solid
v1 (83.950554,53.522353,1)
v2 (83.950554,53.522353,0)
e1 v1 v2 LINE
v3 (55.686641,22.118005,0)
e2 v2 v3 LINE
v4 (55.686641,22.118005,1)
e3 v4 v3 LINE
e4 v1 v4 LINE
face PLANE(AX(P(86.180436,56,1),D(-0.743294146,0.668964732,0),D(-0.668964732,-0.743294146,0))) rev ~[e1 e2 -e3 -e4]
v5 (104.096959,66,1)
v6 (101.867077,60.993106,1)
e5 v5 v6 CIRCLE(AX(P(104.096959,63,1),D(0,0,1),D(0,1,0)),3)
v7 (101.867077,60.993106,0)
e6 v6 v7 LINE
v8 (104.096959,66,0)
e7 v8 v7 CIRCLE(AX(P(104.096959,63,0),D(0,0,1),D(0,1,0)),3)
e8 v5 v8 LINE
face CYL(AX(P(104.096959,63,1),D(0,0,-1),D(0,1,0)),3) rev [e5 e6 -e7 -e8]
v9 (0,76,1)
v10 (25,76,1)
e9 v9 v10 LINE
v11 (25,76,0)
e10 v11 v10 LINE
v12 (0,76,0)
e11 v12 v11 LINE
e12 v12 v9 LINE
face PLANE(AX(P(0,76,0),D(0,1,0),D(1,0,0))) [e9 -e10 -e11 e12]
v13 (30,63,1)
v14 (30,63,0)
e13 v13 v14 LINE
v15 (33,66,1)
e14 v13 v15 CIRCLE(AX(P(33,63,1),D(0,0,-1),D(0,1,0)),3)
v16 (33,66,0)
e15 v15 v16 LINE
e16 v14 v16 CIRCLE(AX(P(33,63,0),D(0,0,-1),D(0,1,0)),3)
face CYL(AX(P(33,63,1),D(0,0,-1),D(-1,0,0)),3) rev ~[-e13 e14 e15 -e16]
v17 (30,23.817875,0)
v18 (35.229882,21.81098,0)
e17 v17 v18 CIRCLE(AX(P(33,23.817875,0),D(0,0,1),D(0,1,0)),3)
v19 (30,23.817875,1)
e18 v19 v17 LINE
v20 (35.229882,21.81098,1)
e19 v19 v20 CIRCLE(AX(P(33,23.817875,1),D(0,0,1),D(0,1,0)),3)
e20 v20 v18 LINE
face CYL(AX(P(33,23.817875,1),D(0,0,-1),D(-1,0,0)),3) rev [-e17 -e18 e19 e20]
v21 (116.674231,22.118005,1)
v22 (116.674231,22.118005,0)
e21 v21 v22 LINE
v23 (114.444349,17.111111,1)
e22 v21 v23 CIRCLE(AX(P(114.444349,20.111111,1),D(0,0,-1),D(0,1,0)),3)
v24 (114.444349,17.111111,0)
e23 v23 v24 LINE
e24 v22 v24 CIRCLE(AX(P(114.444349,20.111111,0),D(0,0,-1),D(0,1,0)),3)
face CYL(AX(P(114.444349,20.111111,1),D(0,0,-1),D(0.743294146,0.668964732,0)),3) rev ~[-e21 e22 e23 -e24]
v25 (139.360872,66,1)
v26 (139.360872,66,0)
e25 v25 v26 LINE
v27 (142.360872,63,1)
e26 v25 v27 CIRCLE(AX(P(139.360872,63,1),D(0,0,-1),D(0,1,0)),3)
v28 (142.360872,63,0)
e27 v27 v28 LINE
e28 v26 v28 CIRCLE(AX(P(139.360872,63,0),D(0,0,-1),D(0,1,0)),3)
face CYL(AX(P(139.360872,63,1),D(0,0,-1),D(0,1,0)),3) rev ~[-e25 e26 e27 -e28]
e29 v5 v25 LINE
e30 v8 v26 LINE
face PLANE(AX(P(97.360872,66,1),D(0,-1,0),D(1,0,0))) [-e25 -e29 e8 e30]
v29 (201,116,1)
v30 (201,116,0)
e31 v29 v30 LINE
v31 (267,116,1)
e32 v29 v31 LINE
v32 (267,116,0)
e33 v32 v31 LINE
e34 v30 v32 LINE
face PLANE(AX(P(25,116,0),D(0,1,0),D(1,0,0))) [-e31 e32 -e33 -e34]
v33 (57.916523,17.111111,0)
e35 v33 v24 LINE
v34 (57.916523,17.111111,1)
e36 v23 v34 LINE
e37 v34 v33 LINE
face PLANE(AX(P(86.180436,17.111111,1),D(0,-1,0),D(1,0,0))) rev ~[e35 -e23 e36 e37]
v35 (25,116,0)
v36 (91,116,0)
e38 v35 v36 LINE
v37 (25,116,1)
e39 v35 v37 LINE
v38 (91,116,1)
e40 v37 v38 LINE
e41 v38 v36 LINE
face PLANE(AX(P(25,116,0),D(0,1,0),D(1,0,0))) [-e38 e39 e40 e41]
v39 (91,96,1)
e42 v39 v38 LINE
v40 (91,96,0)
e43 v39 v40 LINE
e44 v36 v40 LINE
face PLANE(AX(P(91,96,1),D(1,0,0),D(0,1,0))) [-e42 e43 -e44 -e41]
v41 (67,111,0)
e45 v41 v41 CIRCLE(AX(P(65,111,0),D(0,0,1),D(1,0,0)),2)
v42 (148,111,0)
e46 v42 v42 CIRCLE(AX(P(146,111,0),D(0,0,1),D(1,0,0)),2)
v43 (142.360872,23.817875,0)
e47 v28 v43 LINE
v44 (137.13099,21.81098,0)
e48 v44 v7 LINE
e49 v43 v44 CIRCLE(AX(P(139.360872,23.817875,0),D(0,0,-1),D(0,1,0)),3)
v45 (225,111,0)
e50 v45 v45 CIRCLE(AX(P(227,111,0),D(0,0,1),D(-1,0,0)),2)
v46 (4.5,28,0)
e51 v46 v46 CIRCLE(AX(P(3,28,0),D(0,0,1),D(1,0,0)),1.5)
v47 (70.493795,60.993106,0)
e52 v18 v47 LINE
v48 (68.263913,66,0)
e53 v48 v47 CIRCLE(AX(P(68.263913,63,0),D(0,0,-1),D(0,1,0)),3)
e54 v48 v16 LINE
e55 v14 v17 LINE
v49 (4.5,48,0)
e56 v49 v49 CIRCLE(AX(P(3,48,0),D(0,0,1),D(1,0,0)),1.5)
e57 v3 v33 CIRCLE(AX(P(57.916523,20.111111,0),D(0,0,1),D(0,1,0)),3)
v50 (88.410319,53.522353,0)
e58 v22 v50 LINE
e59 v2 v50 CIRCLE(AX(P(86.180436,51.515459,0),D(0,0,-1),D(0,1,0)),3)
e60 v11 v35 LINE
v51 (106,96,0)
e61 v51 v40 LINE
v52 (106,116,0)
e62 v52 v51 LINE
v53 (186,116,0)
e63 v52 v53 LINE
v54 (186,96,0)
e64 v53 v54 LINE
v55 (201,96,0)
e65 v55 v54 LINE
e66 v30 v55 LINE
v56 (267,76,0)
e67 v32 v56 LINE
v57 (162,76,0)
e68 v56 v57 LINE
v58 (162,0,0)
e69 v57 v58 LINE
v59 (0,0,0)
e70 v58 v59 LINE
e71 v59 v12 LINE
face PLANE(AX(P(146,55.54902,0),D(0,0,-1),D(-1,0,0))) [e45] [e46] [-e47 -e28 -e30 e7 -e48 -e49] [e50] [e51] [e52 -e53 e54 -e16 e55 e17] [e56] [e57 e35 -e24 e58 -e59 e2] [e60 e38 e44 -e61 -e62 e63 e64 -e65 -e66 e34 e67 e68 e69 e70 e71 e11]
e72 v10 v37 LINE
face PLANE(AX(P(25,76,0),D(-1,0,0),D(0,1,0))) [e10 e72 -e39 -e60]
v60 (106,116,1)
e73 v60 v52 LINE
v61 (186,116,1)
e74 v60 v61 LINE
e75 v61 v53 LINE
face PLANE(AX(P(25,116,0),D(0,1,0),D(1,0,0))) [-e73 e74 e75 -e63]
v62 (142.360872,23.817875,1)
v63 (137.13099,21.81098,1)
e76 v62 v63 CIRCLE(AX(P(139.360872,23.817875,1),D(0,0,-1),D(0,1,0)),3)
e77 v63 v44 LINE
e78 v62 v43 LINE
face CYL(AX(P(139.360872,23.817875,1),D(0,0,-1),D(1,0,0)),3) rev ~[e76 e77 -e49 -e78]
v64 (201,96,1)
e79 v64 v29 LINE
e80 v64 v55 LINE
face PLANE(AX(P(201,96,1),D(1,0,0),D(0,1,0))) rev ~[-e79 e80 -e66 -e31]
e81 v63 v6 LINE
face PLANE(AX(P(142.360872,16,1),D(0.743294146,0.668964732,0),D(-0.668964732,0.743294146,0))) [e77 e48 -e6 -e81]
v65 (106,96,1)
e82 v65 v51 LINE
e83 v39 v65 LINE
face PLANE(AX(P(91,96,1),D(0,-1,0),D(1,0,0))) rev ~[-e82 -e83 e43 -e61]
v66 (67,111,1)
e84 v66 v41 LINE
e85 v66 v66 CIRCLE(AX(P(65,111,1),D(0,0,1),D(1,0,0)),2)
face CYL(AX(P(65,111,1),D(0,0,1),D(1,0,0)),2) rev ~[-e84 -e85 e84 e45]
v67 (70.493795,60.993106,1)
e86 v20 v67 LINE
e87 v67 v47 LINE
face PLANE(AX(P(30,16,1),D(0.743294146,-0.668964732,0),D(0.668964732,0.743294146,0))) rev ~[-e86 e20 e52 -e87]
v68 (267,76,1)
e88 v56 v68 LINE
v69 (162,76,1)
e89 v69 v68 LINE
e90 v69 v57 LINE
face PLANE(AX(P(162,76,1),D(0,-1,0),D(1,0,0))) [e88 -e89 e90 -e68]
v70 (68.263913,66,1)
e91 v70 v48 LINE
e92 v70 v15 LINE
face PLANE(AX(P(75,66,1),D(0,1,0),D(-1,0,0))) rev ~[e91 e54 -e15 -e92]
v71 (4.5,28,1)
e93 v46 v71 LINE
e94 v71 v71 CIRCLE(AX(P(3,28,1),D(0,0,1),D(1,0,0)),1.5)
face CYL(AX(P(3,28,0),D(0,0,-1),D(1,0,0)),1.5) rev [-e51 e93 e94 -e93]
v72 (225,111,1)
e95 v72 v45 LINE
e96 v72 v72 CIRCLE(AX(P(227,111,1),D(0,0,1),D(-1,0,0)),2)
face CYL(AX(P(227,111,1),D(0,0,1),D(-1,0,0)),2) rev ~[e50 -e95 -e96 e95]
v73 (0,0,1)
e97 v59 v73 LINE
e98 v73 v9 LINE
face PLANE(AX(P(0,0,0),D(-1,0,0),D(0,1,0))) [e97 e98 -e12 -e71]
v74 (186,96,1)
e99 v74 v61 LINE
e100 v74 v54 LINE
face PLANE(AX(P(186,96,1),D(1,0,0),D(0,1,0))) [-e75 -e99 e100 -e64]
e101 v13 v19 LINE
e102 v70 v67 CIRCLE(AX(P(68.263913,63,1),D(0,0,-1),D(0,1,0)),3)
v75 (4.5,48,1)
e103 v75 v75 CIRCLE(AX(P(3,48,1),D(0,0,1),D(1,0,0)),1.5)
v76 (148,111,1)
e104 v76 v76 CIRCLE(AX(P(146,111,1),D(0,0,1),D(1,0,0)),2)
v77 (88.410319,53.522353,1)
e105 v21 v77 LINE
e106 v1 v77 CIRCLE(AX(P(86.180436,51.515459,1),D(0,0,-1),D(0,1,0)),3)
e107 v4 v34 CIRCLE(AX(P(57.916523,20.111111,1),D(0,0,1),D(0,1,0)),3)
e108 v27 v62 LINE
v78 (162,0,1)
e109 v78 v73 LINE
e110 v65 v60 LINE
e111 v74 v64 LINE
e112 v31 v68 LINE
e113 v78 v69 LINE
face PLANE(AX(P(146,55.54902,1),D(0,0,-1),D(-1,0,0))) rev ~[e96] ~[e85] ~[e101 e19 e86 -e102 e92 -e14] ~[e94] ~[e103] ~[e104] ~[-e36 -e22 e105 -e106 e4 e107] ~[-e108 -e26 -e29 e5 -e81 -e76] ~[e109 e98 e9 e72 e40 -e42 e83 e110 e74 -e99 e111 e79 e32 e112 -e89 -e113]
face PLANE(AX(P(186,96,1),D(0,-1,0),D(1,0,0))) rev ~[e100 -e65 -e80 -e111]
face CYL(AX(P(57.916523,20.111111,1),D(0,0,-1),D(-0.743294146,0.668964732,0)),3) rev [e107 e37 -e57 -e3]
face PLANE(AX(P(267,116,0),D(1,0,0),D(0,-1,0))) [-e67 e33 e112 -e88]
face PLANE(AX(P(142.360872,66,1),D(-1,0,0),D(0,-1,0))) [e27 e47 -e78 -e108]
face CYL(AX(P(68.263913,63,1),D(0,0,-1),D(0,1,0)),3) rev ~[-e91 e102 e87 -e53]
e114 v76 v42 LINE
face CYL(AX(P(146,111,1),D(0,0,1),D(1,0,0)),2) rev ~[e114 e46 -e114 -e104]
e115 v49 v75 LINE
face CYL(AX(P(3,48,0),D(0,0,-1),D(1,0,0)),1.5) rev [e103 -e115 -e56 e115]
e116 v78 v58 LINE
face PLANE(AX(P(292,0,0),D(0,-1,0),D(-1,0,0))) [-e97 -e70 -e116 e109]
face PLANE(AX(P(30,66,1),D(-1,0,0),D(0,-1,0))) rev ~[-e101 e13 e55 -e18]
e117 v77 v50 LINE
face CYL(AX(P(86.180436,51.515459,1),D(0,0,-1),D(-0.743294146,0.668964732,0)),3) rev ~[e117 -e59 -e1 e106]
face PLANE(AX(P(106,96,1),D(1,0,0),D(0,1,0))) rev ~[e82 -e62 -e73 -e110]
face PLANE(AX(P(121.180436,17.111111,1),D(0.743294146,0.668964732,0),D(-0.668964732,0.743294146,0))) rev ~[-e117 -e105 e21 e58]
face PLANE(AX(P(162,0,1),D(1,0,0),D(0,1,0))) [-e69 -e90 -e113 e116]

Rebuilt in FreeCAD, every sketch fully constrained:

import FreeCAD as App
import Part
import Sketcher

V = App.Vector


def edges_at(feature, points):
    """Names of the edges that pass closest to the given points."""
    edges = feature.Shape.Edges
    near = lambda p: min(range(len(edges)), key=lambda i: edges[i].distToShape(Part.Vertex(*p))[0])
    return sorted({f"Edge{near(p) + 1}" for p in points})

doc = App.newDocument("Part")
params = doc.addObject("Spreadsheet::Sheet", "Params")
for row, (alias, value) in enumerate([
    ("sketch1_diameter", "3 mm"),
    ("sketch1_width", "292 mm"),
    ("sketch1_width2", "25 mm"),
    ("sketch1_height", "76 mm"),
    ("sketch1_height2", "40 mm"),
    ("pad1_length", "1 mm"),
    ("sketch2_diameter", "4 mm"),
    ("sketch2_width", "15 mm"),
    ("sketch2_height", "20 mm"),
    ("sketch3_width", "130 mm"),
    ("sketch3_height", "76 mm"),
    ("sketch4_width", "45 mm"),
    ("sketch4_height", "50 mm"),
    ("sketch5_width", "35 mm"),
    ("sketch6_width", "35 mm"),
    ("sketch7_width", "45 mm"),
    ("sketch7_height", "50 mm"),
    ("fillet_radius", "3 mm"),
], start=1):
    params.set(f"A{row}", alias)
    params.set(f"B{row}", "=" + value)
    params.setAlias(f"B{row}", alias)

body = doc.addObject("PartDesign::Body", "Body")

# Sketch on XY plane
sketch1 = doc.addObject("Sketcher::SketchObject", "Sketch")
body.addObject(sketch1)
sketch1.AttachmentSupport = (doc.XY_Plane, [""])
sketch1.MapMode = "FlatFace"
sketch1.addGeometry([
    Part.LineSegment(V(0, 76, 0), V(0, 0, 0)),  # 0
    Part.LineSegment(V(0, 0, 0), V(292, 0, 0)),  # 1
    Part.LineSegment(V(292, 0, 0), V(292, 76, 0)),  # 2
    Part.LineSegment(V(292, 76, 0), V(267, 76, 0)),  # 3
    Part.LineSegment(V(267, 76, 0), V(267, 116, 0)),  # 4
    Part.LineSegment(V(267, 116, 0), V(25, 116, 0)),  # 5
    Part.LineSegment(V(25, 116, 0), V(25, 76, 0)),  # 6
    Part.LineSegment(V(25, 76, 0), V(0, 76, 0)),  # 7
    Part.Circle(V(289, 28, 0), V(0, 0, 1), 1.5),  # 8
    Part.Circle(V(3, 28, 0), V(0, 0, 1), 1.5),  # 9
    Part.Circle(V(289, 48, 0), V(0, 0, 1), 1.5),  # 10
    Part.Circle(V(3, 48, 0), V(0, 0, 1), 1.5),  # 11
], False)
sketch1.addConstraint([
    Sketcher.Constraint("Coincident", 0, 2, 1, 1),
    Sketcher.Constraint("Coincident", 1, 2, 2, 1),
    Sketcher.Constraint("Coincident", 2, 2, 3, 1),
    Sketcher.Constraint("Coincident", 3, 2, 4, 1),
    Sketcher.Constraint("Coincident", 4, 2, 5, 1),
    Sketcher.Constraint("Coincident", 5, 2, 6, 1),
    Sketcher.Constraint("Coincident", 6, 2, 7, 1),
    Sketcher.Constraint("Coincident", 7, 2, 0, 1),
    Sketcher.Constraint("Vertical", 0),
    Sketcher.Constraint("Horizontal", 1),
    Sketcher.Constraint("Vertical", 2),
    Sketcher.Constraint("Horizontal", 3),
    Sketcher.Constraint("Vertical", 4),
    Sketcher.Constraint("Horizontal", 5),
    Sketcher.Constraint("Vertical", 6),
    Sketcher.Constraint("Horizontal", 7),
    Sketcher.Constraint("Coincident", 0, 2, -1, 1),
    Sketcher.Constraint("Equal", 8, 9),
    Sketcher.Constraint("Equal", 9, 10),
    Sketcher.Constraint("Equal", 10, 11),
    Sketcher.Constraint("Horizontal", 8, 3, 9, 3),
    Sketcher.Constraint("Horizontal", 10, 3, 11, 3),
    Sketcher.Constraint("Horizontal", 3, 2, 6, 2),
    Sketcher.Constraint("Vertical", 8, 3, 10, 3),
    Sketcher.Constraint("Vertical", 9, 3, 11, 3),
    Sketcher.Constraint("Equal", 3, 7),
    Sketcher.Constraint("Diameter", 8, 3.0),
    Sketcher.Constraint("DistanceX", 1, 1, 1, 2, 292.0),
    Sketcher.Constraint("DistanceX", 3, 2, 3, 1, 25.0),
    Sketcher.Constraint("DistanceY", 0, 2, 0, 1, 76.0),
    Sketcher.Constraint("DistanceY", 4, 1, 4, 2, 40.0),
    Sketcher.Constraint("DistanceX", -1, 1, 8, 3, 289.0),
    Sketcher.Constraint("DistanceY", -1, 1, 8, 3, 28.0),
    Sketcher.Constraint("DistanceX", -1, 1, 9, 3, 3.0),
    Sketcher.Constraint("DistanceY", -1, 1, 10, 3, 48.0),
])
sketch1.setExpression("Constraints[26]", "Params.sketch1_diameter")
sketch1.setExpression("Constraints[27]", "Params.sketch1_width")
sketch1.setExpression("Constraints[28]", "Params.sketch1_width2")
sketch1.setExpression("Constraints[29]", "Params.sketch1_height")
sketch1.setExpression("Constraints[30]", "Params.sketch1_height2")
pad1 = doc.addObject("PartDesign::Pad", "Pad")
body.addObject(pad1)
pad1.Profile = sketch1
pad1.setExpression("Length", "Params.pad1_length")

# Sketch on XY plane
sketch2 = doc.addObject("Sketcher::SketchObject", "Sketch001")
body.addObject(sketch2)
sketch2.AttachmentSupport = (doc.XY_Plane, [""])
sketch2.MapMode = "FlatFace"
sketch2.AttachmentOffset = App.Placement(V(0, 0, 1), App.Rotation())
sketch2.addGeometry([
    Part.Circle(V(65, 111, 0), V(0, 0, 1), 2),  # 0
    Part.Circle(V(227, 111, 0), V(0, 0, 1), 2),  # 1
    Part.Circle(V(146, 111, 0), V(0, 0, 1), 2),  # 2
    Part.LineSegment(V(186, 116, 0), V(186, 96, 0)),  # 3
    Part.LineSegment(V(186, 96, 0), V(201, 96, 0)),  # 4
    Part.LineSegment(V(201, 96, 0), V(201, 116, 0)),  # 5
    Part.LineSegment(V(201, 116, 0), V(186, 116, 0)),  # 6
    Part.LineSegment(V(91, 116, 0), V(91, 96, 0)),  # 7
    Part.LineSegment(V(91, 96, 0), V(106, 96, 0)),  # 8
    Part.LineSegment(V(106, 96, 0), V(106, 116, 0)),  # 9
    Part.LineSegment(V(106, 116, 0), V(91, 116, 0)),  # 10
], False)
sketch2.addConstraint([
    Sketcher.Constraint("Coincident", 3, 2, 4, 1),
    Sketcher.Constraint("Coincident", 4, 2, 5, 1),
    Sketcher.Constraint("Coincident", 5, 2, 6, 1),
    Sketcher.Constraint("Coincident", 6, 2, 3, 1),
    Sketcher.Constraint("Coincident", 7, 2, 8, 1),
    Sketcher.Constraint("Coincident", 8, 2, 9, 1),
    Sketcher.Constraint("Coincident", 9, 2, 10, 1),
    Sketcher.Constraint("Coincident", 10, 2, 7, 1),
    Sketcher.Constraint("Vertical", 3),
    Sketcher.Constraint("Horizontal", 4),
    Sketcher.Constraint("Vertical", 5),
    Sketcher.Constraint("Horizontal", 6),
    Sketcher.Constraint("Vertical", 7),
    Sketcher.Constraint("Horizontal", 8),
    Sketcher.Constraint("Vertical", 9),
    Sketcher.Constraint("Horizontal", 10),
    Sketcher.Constraint("Equal", 0, 1),
    Sketcher.Constraint("Equal", 1, 2),
    Sketcher.Constraint("Horizontal", 0, 3, 1, 3),
    Sketcher.Constraint("Horizontal", 1, 3, 2, 3),
    Sketcher.Constraint("Horizontal", 4, 2, 7, 2),
    Sketcher.Constraint("Horizontal", 6, 2, 9, 2),
    Sketcher.Constraint("Equal", 6, 8),
    Sketcher.Constraint("Diameter", 0, 4.0),
    Sketcher.Constraint("DistanceX", 4, 1, 4, 2, 15.0),
    Sketcher.Constraint("DistanceY", 3, 2, 3, 1, 20.0),
    Sketcher.Constraint("DistanceX", -1, 1, 0, 3, 65.0),
    Sketcher.Constraint("DistanceY", -1, 1, 0, 3, 111.0),
    Sketcher.Constraint("DistanceX", -1, 1, 1, 3, 227.0),
    Sketcher.Constraint("DistanceX", -1, 1, 2, 3, 146.0),
    Sketcher.Constraint("DistanceX", -1, 1, 3, 2, 186.0),
    Sketcher.Constraint("DistanceY", -1, 1, 3, 2, 96.0),
    Sketcher.Constraint("DistanceX", -1, 1, 7, 2, 91.0),
])
sketch2.setExpression("Constraints[23]", "Params.sketch2_diameter")
sketch2.setExpression("Constraints[24]", "Params.sketch2_width")
sketch2.setExpression("Constraints[25]", "Params.sketch2_height")
pocket1 = doc.addObject("PartDesign::Pocket", "Pocket")
body.addObject(pocket1)
pocket1.Profile = sketch2
pocket1.Type = "ThroughAll"

# Sketch on XY plane
sketch3 = doc.addObject("Sketcher::SketchObject", "Sketch002")
body.addObject(sketch3)
sketch3.AttachmentSupport = (doc.XY_Plane, [""])
sketch3.MapMode = "FlatFace"
sketch3.AttachmentOffset = App.Placement(V(0, 0, 1), App.Rotation())
sketch3.addGeometry([
    Part.LineSegment(V(162, 76, 0), V(162, 0, 0)),
    Part.LineSegment(V(162, 0, 0), V(292, 0, 0)),
    Part.LineSegment(V(292, 0, 0), V(292, 76, 0)),
    Part.LineSegment(V(292, 76, 0), V(162, 76, 0)),
], False)
sketch3.addConstraint([
    Sketcher.Constraint("Coincident", 0, 2, 1, 1),
    Sketcher.Constraint("Coincident", 1, 2, 2, 1),
    Sketcher.Constraint("Coincident", 2, 2, 3, 1),
    Sketcher.Constraint("Coincident", 3, 2, 0, 1),
    Sketcher.Constraint("Vertical", 0),
    Sketcher.Constraint("Horizontal", 1),
    Sketcher.Constraint("Vertical", 2),
    Sketcher.Constraint("Horizontal", 3),
    Sketcher.Constraint("PointOnObject", 0, 2, -1),
    Sketcher.Constraint("DistanceX", 1, 1, 1, 2, 130.0),
    Sketcher.Constraint("DistanceY", 0, 2, 0, 1, 76.0),
    Sketcher.Constraint("DistanceX", -1, 1, 0, 2, 162.0),
])
sketch3.setExpression("Constraints[9]", "Params.sketch3_width")
sketch3.setExpression("Constraints[10]", "Params.sketch3_height")
pocket2 = doc.addObject("PartDesign::Pocket", "Pocket001")
body.addObject(pocket2)
pocket2.Profile = sketch3
pocket2.Type = "ThroughAll"

# Sketch on XY plane
sketch4 = doc.addObject("Sketcher::SketchObject", "Sketch003")
body.addObject(sketch4)
sketch4.AttachmentSupport = (doc.XY_Plane, [""])
sketch4.MapMode = "FlatFace"
sketch4.AttachmentOffset = App.Placement(V(0, 0, 1), App.Rotation())
sketch4.addGeometry([
    Part.LineSegment(V(30, 16, 0), V(75, 66, 0)),
    Part.LineSegment(V(75, 66, 0), V(30, 66, 0)),
    Part.LineSegment(V(30, 66, 0), V(30, 16, 0)),
], False)
sketch4.addConstraint([
    Sketcher.Constraint("Coincident", 0, 2, 1, 1),
    Sketcher.Constraint("Coincident", 1, 2, 2, 1),
    Sketcher.Constraint("Coincident", 2, 2, 0, 1),
    Sketcher.Constraint("Horizontal", 1),
    Sketcher.Constraint("Vertical", 2),
    Sketcher.Constraint("DistanceX", 1, 2, 1, 1, 45.0),
    Sketcher.Constraint("DistanceY", 2, 2, 2, 1, 50.0),
    Sketcher.Constraint("DistanceX", -1, 1, 0, 2, 75.0),
    Sketcher.Constraint("DistanceY", -1, 1, 0, 2, 66.0),
])
sketch4.setExpression("Constraints[5]", "Params.sketch4_width")
sketch4.setExpression("Constraints[6]", "Params.sketch4_height")
pocket3 = doc.addObject("PartDesign::Pocket", "Pocket002")
body.addObject(pocket3)
pocket3.Profile = sketch4
pocket3.Type = "UpToFirst"

# Sketch on XY plane
sketch5 = doc.addObject("Sketcher::SketchObject", "Sketch004")
body.addObject(sketch5)
sketch5.AttachmentSupport = (doc.XY_Plane, [""])
sketch5.MapMode = "FlatFace"
sketch5.AttachmentOffset = App.Placement(V(0, 0, 1), App.Rotation())
sketch5.addGeometry([
    Part.LineSegment(V(86.180436, 17.111111, 0), V(86.180436, 56, 0)),
    Part.LineSegment(V(86.180436, 56, 0), V(51.180436, 17.111111, 0)),
    Part.LineSegment(V(51.180436, 17.111111, 0), V(86.180436, 17.111111, 0)),
], False)
sketch5.addConstraint([
    Sketcher.Constraint("Coincident", 0, 2, 1, 1),
    Sketcher.Constraint("Coincident", 1, 2, 2, 1),
    Sketcher.Constraint("Coincident", 2, 2, 0, 1),
    Sketcher.Constraint("Vertical", 0),
    Sketcher.Constraint("Horizontal", 2),
    Sketcher.Constraint("DistanceX", 2, 1, 2, 2, 35.0),
    Sketcher.Constraint("DistanceY", -1, 1, 0, 2, 56.0),
    Sketcher.Constraint("DistanceY", 0, 1, 0, 2, 38.888889),
    Sketcher.Constraint("DistanceX", -1, 1, 0, 2, 86.180436),
])
sketch5.setExpression("Constraints[5]", "Params.sketch5_width")
pocket4 = doc.addObject("PartDesign::Pocket", "Pocket003")
body.addObject(pocket4)
pocket4.Profile = sketch5
pocket4.Type = "UpToFirst"

# Sketch on XY plane
sketch6 = doc.addObject("Sketcher::SketchObject", "Sketch005")
body.addObject(sketch6)
sketch6.AttachmentSupport = (doc.XY_Plane, [""])
sketch6.MapMode = "FlatFace"
sketch6.AttachmentOffset = App.Placement(V(0, 0, 1), App.Rotation())
sketch6.addGeometry([
    Part.LineSegment(V(121.180436, 17.111111, 0), V(86.180436, 56, 0)),
    Part.LineSegment(V(86.180436, 56, 0), V(86.180436, 17.111111, 0)),
    Part.LineSegment(V(86.180436, 17.111111, 0), V(121.180436, 17.111111, 0)),
], False)
sketch6.addConstraint([
    Sketcher.Constraint("Coincident", 0, 2, 1, 1),
    Sketcher.Constraint("Coincident", 1, 2, 2, 1),
    Sketcher.Constraint("Coincident", 2, 2, 0, 1),
    Sketcher.Constraint("Vertical", 1),
    Sketcher.Constraint("Horizontal", 2),
    Sketcher.Constraint("DistanceX", 2, 1, 2, 2, 35.0),
    Sketcher.Constraint("DistanceY", -1, 1, 0, 2, 56.0),
    Sketcher.Constraint("DistanceY", 1, 2, 1, 1, 38.888889),
    Sketcher.Constraint("DistanceX", -1, 1, 0, 2, 86.180436),
])
sketch6.setExpression("Constraints[5]", "Params.sketch6_width")
pocket5 = doc.addObject("PartDesign::Pocket", "Pocket004")
body.addObject(pocket5)
pocket5.Profile = sketch6
pocket5.Type = "UpToFirst"

# Sketch on XY plane
sketch7 = doc.addObject("Sketcher::SketchObject", "Sketch006")
body.addObject(sketch7)
sketch7.AttachmentSupport = (doc.XY_Plane, [""])
sketch7.MapMode = "FlatFace"
sketch7.AttachmentOffset = App.Placement(V(0, 0, 1), App.Rotation())
sketch7.addGeometry([
    Part.LineSegment(V(142.360872, 66, 0), V(97.360872, 66, 0)),
    Part.LineSegment(V(97.360872, 66, 0), V(142.360872, 16, 0)),
    Part.LineSegment(V(142.360872, 16, 0), V(142.360872, 66, 0)),
], False)
sketch7.addConstraint([
    Sketcher.Constraint("Coincident", 0, 2, 1, 1),
    Sketcher.Constraint("Coincident", 1, 2, 2, 1),
    Sketcher.Constraint("Coincident", 2, 2, 0, 1),
    Sketcher.Constraint("Horizontal", 0),
    Sketcher.Constraint("Vertical", 2),
    Sketcher.Constraint("DistanceX", 0, 2, 0, 1, 45.0),
    Sketcher.Constraint("DistanceY", 2, 1, 2, 2, 50.0),
    Sketcher.Constraint("DistanceY", -1, 1, 0, 2, 66.0),
    Sketcher.Constraint("DistanceX", -1, 1, 0, 2, 97.360872),
])
sketch7.setExpression("Constraints[5]", "Params.sketch7_width")
sketch7.setExpression("Constraints[6]", "Params.sketch7_height")
pocket6 = doc.addObject("PartDesign::Pocket", "Pocket005")
body.addObject(pocket6)
pocket6.Profile = sketch7
pocket6.Type = "UpToFirst"
doc.recompute()

fillet = doc.addObject("PartDesign::Fillet", "Fillet")
body.addObject(fillet)
fillet.Base = (pocket6, edges_at(pocket6, [
    (121.18, 17.111, 0.5),
    (51.18, 17.111, 0.5),
    (86.18, 56, 0.5),
    (97.361, 66, 0.5),
    (142.361, 66, 0.5),
    (142.361, 16, 0.5),
    (75, 66, 0.5),
    (30, 16, 0.5),
    (30, 66, 0.5),
]))
fillet.setExpression("Radius", "Params.fillet_radius")

doc.recompute()
